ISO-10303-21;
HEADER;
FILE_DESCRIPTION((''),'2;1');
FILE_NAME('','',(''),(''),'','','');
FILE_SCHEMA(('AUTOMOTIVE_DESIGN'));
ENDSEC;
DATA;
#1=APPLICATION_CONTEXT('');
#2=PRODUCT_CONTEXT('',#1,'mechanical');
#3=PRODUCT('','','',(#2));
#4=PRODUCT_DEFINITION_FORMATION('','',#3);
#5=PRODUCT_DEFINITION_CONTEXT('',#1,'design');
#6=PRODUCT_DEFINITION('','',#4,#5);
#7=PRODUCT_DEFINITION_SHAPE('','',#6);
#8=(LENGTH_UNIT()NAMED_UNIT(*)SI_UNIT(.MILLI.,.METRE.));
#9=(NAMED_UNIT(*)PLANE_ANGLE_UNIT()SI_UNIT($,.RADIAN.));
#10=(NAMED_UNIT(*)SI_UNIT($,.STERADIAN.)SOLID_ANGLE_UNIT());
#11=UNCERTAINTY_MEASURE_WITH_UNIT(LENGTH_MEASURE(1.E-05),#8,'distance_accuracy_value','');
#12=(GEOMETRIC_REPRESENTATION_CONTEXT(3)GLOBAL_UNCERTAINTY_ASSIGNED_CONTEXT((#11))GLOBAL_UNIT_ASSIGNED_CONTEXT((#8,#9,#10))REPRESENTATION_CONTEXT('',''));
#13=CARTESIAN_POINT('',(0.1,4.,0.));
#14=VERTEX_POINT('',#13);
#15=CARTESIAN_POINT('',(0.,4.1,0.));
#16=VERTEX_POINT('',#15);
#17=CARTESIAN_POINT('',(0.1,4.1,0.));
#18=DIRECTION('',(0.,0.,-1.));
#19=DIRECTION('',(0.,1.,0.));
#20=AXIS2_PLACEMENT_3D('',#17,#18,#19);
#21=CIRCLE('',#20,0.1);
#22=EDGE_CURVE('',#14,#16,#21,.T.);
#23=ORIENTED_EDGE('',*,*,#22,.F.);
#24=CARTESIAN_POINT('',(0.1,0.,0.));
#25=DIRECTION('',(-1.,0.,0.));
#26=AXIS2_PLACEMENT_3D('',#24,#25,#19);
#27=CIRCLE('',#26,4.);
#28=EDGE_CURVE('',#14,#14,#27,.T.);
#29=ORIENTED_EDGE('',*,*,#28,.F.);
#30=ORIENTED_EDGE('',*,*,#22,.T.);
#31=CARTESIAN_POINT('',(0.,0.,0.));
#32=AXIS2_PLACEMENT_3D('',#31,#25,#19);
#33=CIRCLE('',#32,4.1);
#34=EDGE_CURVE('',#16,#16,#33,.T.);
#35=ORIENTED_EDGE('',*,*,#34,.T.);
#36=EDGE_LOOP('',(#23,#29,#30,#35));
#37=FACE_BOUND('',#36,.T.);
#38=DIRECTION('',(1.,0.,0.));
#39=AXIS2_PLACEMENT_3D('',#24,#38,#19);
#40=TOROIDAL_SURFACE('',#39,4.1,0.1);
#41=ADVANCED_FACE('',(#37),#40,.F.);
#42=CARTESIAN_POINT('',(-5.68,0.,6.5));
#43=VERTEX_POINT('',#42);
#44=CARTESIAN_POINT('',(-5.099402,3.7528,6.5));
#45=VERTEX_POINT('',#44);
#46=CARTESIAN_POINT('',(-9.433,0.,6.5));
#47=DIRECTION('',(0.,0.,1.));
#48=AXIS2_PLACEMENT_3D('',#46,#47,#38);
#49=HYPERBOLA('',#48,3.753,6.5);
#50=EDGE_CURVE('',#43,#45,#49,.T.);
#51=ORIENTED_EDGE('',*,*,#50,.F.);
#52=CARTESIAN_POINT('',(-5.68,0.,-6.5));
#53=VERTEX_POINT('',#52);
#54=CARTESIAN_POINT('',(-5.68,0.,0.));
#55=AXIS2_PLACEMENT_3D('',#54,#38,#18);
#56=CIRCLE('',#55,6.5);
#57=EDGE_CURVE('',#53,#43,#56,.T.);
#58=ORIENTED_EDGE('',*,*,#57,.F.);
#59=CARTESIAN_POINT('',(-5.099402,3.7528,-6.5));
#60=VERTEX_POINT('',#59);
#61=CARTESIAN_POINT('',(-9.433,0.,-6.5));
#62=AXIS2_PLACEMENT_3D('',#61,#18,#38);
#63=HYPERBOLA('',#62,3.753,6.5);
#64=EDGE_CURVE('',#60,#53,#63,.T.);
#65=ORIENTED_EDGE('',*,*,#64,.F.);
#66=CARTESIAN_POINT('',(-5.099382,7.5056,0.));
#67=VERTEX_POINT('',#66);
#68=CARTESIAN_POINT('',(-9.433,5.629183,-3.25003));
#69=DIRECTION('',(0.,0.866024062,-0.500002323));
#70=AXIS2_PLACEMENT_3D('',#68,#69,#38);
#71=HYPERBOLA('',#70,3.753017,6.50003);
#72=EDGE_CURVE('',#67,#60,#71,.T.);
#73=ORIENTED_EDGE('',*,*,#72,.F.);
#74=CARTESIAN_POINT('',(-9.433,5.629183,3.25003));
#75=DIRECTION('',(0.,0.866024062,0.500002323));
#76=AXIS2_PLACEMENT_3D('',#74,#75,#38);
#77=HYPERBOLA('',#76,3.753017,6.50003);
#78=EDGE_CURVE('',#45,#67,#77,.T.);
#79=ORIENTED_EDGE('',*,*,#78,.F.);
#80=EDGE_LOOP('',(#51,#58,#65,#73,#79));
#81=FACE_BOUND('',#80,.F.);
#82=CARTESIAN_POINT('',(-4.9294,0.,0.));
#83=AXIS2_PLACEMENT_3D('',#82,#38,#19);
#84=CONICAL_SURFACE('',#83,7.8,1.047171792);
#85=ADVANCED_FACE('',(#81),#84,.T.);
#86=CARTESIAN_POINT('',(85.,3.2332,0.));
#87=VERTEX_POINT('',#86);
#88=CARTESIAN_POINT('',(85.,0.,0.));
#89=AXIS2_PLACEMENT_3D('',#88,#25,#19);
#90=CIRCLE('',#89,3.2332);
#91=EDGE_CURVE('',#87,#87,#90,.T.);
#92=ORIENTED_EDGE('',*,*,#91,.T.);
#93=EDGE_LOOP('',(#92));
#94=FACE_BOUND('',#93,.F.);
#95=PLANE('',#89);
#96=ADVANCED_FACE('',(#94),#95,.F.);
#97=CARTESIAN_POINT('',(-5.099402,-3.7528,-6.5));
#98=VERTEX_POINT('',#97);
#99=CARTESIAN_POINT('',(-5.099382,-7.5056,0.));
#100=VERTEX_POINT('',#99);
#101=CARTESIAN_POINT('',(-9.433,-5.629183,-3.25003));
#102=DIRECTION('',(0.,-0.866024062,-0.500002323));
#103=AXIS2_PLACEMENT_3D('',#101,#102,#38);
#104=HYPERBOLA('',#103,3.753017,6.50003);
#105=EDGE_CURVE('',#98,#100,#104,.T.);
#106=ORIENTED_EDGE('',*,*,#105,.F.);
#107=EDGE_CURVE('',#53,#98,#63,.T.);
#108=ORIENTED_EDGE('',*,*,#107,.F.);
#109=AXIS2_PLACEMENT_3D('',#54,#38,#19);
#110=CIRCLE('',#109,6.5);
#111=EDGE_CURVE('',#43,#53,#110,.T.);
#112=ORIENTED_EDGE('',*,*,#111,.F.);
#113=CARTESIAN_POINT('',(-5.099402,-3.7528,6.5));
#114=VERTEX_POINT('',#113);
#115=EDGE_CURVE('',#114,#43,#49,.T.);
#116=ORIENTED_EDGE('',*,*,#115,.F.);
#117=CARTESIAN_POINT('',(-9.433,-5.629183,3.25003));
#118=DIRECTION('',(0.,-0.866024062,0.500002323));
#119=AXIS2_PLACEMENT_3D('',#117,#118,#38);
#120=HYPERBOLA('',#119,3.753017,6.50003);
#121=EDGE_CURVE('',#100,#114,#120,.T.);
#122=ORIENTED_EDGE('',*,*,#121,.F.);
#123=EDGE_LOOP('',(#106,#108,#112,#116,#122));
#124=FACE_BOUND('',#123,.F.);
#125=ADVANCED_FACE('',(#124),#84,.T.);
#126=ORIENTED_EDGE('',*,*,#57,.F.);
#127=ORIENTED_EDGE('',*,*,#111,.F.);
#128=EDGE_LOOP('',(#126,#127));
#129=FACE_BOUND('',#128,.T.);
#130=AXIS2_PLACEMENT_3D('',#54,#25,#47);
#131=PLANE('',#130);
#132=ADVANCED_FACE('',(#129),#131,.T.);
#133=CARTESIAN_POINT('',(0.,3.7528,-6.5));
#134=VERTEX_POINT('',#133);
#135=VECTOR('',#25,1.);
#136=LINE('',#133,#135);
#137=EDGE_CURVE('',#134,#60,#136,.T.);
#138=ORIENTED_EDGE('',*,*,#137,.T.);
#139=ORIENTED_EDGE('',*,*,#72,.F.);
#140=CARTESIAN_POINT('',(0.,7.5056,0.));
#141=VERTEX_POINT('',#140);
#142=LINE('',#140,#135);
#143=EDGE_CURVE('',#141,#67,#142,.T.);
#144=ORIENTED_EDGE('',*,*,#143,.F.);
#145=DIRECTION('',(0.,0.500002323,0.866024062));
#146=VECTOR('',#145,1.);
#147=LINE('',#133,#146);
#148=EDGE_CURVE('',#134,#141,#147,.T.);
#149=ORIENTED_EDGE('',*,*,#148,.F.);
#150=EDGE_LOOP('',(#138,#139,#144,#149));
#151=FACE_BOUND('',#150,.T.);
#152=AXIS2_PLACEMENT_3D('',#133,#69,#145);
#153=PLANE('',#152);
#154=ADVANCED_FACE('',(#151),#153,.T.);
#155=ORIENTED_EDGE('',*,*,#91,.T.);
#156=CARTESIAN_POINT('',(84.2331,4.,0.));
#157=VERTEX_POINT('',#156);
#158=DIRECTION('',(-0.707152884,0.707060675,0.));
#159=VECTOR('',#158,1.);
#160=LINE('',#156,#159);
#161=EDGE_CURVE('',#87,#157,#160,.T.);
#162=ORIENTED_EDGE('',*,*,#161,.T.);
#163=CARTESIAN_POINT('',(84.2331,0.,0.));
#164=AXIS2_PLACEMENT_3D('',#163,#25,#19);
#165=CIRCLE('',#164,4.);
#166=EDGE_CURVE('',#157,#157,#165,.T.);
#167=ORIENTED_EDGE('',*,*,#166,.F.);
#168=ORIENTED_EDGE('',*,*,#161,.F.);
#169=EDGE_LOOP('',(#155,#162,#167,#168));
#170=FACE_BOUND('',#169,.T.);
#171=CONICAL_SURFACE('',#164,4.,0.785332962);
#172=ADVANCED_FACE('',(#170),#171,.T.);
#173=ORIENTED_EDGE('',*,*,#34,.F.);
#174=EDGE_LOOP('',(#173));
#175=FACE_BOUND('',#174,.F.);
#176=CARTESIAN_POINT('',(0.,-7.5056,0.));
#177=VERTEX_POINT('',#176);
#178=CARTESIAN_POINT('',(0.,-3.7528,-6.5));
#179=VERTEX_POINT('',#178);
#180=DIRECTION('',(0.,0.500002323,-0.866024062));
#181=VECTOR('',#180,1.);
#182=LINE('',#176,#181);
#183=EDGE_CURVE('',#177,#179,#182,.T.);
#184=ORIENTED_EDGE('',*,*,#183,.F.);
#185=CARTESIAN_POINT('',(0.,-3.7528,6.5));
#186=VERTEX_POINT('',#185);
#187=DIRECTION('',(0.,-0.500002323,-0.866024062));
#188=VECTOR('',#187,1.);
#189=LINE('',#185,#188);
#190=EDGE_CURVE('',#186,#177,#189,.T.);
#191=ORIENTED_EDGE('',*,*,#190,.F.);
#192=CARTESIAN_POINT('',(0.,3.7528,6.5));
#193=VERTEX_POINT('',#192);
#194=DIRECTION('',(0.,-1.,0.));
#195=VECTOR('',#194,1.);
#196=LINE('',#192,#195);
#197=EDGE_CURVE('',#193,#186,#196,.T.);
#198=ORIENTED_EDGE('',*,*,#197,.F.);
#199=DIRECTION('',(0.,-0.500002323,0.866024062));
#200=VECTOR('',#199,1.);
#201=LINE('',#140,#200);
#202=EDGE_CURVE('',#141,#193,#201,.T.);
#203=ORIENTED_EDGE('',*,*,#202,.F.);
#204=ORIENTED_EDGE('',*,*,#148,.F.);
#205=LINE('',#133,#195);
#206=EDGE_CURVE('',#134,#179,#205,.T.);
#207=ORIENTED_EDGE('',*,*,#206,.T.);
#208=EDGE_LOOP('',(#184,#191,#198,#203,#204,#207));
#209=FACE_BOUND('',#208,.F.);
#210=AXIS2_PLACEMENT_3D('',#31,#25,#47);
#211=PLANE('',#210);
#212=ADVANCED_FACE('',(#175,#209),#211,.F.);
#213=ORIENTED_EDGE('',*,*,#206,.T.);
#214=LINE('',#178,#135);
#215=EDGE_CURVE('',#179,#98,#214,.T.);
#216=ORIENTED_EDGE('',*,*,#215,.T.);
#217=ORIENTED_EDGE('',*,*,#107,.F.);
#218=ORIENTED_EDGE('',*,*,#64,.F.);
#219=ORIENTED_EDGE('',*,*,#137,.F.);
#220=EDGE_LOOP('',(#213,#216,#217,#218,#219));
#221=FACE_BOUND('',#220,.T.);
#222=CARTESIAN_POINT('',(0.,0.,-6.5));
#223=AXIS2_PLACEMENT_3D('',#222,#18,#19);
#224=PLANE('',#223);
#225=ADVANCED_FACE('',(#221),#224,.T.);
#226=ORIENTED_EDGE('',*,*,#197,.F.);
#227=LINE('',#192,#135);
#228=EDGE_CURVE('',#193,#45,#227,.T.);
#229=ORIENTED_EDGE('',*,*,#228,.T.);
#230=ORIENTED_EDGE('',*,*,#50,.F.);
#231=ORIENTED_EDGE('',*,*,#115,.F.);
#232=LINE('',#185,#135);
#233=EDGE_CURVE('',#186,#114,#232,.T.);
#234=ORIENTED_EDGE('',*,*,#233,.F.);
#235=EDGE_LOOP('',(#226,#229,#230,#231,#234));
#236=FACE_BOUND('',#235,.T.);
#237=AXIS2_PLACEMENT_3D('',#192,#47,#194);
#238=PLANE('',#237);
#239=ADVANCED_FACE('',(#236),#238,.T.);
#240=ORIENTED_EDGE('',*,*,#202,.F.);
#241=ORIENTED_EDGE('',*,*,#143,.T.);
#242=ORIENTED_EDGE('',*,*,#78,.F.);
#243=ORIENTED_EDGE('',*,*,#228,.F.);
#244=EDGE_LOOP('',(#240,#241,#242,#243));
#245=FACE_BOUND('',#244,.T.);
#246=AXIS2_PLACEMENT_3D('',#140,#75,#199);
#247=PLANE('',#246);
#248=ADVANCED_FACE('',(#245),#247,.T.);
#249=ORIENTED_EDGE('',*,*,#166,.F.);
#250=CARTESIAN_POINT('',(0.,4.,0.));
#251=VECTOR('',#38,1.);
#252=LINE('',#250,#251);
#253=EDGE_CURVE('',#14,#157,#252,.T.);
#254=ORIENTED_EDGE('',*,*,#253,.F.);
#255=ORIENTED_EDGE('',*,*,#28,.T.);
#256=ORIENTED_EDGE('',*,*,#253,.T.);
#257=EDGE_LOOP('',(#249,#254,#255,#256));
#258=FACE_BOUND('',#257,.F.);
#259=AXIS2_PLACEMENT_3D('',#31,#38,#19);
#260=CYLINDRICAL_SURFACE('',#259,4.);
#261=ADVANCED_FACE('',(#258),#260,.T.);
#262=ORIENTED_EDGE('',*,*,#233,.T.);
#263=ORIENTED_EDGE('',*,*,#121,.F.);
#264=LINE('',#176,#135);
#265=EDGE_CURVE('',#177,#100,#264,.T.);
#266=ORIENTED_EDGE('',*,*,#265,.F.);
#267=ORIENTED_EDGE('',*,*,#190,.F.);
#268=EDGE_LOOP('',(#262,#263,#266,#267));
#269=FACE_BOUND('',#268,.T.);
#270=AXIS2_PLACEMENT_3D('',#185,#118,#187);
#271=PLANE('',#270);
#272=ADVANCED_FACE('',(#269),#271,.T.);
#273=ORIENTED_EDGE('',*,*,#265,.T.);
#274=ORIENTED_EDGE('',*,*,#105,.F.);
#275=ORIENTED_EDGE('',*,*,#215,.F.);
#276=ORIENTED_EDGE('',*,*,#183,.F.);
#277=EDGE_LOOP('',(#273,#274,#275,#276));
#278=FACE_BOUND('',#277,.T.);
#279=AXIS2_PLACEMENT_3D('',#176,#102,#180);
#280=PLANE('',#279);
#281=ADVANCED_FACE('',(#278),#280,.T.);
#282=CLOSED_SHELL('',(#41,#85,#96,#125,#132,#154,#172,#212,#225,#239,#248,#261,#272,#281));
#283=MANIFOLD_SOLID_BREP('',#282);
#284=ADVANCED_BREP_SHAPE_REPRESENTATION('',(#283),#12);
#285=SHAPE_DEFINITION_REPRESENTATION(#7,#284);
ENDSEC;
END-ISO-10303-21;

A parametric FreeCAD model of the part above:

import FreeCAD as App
import Part
import Sketcher

V = App.Vector
Q = App.Units.Quantity


def edges_at(feature, points):
    """Names of the edges that pass closest to the given points."""
    edges = feature.Shape.Edges
    near = lambda p: min(range(len(edges)), key=lambda i: edges[i].distToShape(Part.Vertex(*p))[0])
    return sorted({f"Edge{near(p) + 1}" for p in points})


def add_polygon(sketch, points):
    """Adds a closed chain of lines whose ends are joined by coincident constraints."""
    first, n = sketch.GeometryCount, len(points)
    for a, b in zip(points, points[1:] + points[:1]):
        sketch.addGeometry(Part.LineSegment(App.Vector(*a, 0), App.Vector(*b, 0)), False)
    for i in range(n):
        sketch.addConstraint(Sketcher.Constraint("Coincident", first + i, 2, first + (i + 1) % n, 1))

doc = App.newDocument("Part")
params = doc.addObject("Spreadsheet::Sheet", "Params")
for row, (alias, value) in enumerate([
    ("sketch1_width", "85 mm"),
    ("sketch1_height", "4 mm"),
    ("revolution_angle", "360 deg"),
    ("pad1_length", "5.68 mm"),
    ("sketch3_height", "1.3 mm"),
    ("groove_angle", "360 deg"),
    ("chamfer_size", "0.7668 mm"),
    ("chamfer_size2", "0.7669 mm"),
    ("fillet_radius", "0.1 mm"),
], start=1):
    params.set(f"A{row}", alias)
    params.set(f"B{row}", "=" + value)
    params.setAlias(f"B{row}", alias)

body = doc.addObject("PartDesign::Body", "Body")

sketch1 = body.newObject("Sketcher::SketchObject", "Sketch")
sketch1.AttachmentSupport = (doc.getObject("XY_Plane"), [""])
sketch1.MapMode = "FlatFace"
add_polygon(sketch1, [(85, 4), (0, 4), (0, 0), (85, 0)])
sketch1.addConstraint([
    Sketcher.Constraint("Horizontal", 0),
    Sketcher.Constraint("Vertical", 1),
    Sketcher.Constraint("Horizontal", 2),
    Sketcher.Constraint("Vertical", 3),
    Sketcher.Constraint("Coincident", 1, 2, -1, 1),
    Sketcher.Constraint("DistanceX", 0, 2, 0, 1, 85.0),
    Sketcher.Constraint("DistanceY", 1, 2, 1, 1, 4.0),
])
sketch1.setExpression("Constraints[9]", "Params.sketch1_width")
sketch1.setExpression("Constraints[10]", "Params.sketch1_height")
revolution = body.newObject("PartDesign::Revolution", "Revolution")
revolution.Profile = sketch1
revolution.ReferenceAxis = (sketch1, ["H_Axis"])
revolution.setExpression("Angle", "Params.revolution_angle")

sketch2 = body.newObject("Sketcher::SketchObject", "Sketch001")
sketch2.AttachmentSupport = (doc.getObject("YZ_Plane"), [""])
sketch2.MapMode = "FlatFace"
add_polygon(sketch2, [(4, -6), (-4, -6), (-8, 0), (-4, 6), (4, 6), (8, 0)])
sketch2.addConstraint([
    Sketcher.Constraint("Horizontal", 0),
    Sketcher.Constraint("Horizontal", 3),
    Sketcher.Constraint("Symmetric", 0, 2, 3, 2, -1, 1),
    Sketcher.Constraint("Symmetric", 1, 2, 4, 2, -1, 1),
    Sketcher.Constraint("PointOnObject", 1, 2, -1),
    Sketcher.Constraint("Parallel", 2, 5),
    Sketcher.Constraint("Vertical", 0, 2, 2, 2),
    Sketcher.Constraint("DistanceY", 0, 2, 2, 2, 13.0),
    Sketcher.Constraint("Angle", 1, Q("120.0002 deg")),
    Sketcher.Constraint("DistanceX", 0, 2, 0, 1, 7.5056),
])
pad1 = body.newObject("PartDesign::Pad", "Pad")
pad1.Profile = sketch2
pad1.setExpression("Length", "Params.pad1_length")
pad1.Reversed = True

sketch3 = body.newObject("Sketcher::SketchObject", "Sketch002")
sketch3.AttachmentSupport = (doc.getObject("XY_Plane"), [""])
sketch3.MapMode = "FlatFace"
add_polygon(sketch3, [(-5.7, 6.5), (-4.9, 7.8), (-5.7, 7.8)])
sketch3.addConstraint([
    Sketcher.Constraint("Horizontal", 1),
    Sketcher.Constraint("Vertical", 2),
    Sketcher.Constraint("DistanceX", 1, 2, -1, 1, 5.68),
    Sketcher.Constraint("DistanceY", 2, 2, 2, 1, 1.3),
    Sketcher.Constraint("DistanceY", -1, 1, 0, 2, 7.8),
    Sketcher.Constraint("DistanceX", 1, 2, 1, 1, 0.7506),
])
sketch3.setExpression("Constraints[6]", "Params.sketch3_height")
groove = body.newObject("PartDesign::Groove", "Groove")
groove.Profile = sketch3
groove.ReferenceAxis = (sketch3, ["H_Axis"])
groove.setExpression("Angle", "Params.groove_angle")
doc.recompute()

chamfer = body.newObject("PartDesign::Chamfer", "Chamfer")
chamfer.Base = (groove, edges_at(groove, [(85, -4, 0)]))
chamfer.ChamferType = "Two distances"
chamfer.setExpression("Size", "Params.chamfer_size")
chamfer.setExpression("Size2", "Params.chamfer_size2")
doc.recompute()

fillet = body.newObject("PartDesign::Fillet", "Fillet")
fillet.Base = (chamfer, edges_at(chamfer, [(0, -4, 0)]))
fillet.setExpression("Radius", "Params.fillet_radius")

doc.recompute()
